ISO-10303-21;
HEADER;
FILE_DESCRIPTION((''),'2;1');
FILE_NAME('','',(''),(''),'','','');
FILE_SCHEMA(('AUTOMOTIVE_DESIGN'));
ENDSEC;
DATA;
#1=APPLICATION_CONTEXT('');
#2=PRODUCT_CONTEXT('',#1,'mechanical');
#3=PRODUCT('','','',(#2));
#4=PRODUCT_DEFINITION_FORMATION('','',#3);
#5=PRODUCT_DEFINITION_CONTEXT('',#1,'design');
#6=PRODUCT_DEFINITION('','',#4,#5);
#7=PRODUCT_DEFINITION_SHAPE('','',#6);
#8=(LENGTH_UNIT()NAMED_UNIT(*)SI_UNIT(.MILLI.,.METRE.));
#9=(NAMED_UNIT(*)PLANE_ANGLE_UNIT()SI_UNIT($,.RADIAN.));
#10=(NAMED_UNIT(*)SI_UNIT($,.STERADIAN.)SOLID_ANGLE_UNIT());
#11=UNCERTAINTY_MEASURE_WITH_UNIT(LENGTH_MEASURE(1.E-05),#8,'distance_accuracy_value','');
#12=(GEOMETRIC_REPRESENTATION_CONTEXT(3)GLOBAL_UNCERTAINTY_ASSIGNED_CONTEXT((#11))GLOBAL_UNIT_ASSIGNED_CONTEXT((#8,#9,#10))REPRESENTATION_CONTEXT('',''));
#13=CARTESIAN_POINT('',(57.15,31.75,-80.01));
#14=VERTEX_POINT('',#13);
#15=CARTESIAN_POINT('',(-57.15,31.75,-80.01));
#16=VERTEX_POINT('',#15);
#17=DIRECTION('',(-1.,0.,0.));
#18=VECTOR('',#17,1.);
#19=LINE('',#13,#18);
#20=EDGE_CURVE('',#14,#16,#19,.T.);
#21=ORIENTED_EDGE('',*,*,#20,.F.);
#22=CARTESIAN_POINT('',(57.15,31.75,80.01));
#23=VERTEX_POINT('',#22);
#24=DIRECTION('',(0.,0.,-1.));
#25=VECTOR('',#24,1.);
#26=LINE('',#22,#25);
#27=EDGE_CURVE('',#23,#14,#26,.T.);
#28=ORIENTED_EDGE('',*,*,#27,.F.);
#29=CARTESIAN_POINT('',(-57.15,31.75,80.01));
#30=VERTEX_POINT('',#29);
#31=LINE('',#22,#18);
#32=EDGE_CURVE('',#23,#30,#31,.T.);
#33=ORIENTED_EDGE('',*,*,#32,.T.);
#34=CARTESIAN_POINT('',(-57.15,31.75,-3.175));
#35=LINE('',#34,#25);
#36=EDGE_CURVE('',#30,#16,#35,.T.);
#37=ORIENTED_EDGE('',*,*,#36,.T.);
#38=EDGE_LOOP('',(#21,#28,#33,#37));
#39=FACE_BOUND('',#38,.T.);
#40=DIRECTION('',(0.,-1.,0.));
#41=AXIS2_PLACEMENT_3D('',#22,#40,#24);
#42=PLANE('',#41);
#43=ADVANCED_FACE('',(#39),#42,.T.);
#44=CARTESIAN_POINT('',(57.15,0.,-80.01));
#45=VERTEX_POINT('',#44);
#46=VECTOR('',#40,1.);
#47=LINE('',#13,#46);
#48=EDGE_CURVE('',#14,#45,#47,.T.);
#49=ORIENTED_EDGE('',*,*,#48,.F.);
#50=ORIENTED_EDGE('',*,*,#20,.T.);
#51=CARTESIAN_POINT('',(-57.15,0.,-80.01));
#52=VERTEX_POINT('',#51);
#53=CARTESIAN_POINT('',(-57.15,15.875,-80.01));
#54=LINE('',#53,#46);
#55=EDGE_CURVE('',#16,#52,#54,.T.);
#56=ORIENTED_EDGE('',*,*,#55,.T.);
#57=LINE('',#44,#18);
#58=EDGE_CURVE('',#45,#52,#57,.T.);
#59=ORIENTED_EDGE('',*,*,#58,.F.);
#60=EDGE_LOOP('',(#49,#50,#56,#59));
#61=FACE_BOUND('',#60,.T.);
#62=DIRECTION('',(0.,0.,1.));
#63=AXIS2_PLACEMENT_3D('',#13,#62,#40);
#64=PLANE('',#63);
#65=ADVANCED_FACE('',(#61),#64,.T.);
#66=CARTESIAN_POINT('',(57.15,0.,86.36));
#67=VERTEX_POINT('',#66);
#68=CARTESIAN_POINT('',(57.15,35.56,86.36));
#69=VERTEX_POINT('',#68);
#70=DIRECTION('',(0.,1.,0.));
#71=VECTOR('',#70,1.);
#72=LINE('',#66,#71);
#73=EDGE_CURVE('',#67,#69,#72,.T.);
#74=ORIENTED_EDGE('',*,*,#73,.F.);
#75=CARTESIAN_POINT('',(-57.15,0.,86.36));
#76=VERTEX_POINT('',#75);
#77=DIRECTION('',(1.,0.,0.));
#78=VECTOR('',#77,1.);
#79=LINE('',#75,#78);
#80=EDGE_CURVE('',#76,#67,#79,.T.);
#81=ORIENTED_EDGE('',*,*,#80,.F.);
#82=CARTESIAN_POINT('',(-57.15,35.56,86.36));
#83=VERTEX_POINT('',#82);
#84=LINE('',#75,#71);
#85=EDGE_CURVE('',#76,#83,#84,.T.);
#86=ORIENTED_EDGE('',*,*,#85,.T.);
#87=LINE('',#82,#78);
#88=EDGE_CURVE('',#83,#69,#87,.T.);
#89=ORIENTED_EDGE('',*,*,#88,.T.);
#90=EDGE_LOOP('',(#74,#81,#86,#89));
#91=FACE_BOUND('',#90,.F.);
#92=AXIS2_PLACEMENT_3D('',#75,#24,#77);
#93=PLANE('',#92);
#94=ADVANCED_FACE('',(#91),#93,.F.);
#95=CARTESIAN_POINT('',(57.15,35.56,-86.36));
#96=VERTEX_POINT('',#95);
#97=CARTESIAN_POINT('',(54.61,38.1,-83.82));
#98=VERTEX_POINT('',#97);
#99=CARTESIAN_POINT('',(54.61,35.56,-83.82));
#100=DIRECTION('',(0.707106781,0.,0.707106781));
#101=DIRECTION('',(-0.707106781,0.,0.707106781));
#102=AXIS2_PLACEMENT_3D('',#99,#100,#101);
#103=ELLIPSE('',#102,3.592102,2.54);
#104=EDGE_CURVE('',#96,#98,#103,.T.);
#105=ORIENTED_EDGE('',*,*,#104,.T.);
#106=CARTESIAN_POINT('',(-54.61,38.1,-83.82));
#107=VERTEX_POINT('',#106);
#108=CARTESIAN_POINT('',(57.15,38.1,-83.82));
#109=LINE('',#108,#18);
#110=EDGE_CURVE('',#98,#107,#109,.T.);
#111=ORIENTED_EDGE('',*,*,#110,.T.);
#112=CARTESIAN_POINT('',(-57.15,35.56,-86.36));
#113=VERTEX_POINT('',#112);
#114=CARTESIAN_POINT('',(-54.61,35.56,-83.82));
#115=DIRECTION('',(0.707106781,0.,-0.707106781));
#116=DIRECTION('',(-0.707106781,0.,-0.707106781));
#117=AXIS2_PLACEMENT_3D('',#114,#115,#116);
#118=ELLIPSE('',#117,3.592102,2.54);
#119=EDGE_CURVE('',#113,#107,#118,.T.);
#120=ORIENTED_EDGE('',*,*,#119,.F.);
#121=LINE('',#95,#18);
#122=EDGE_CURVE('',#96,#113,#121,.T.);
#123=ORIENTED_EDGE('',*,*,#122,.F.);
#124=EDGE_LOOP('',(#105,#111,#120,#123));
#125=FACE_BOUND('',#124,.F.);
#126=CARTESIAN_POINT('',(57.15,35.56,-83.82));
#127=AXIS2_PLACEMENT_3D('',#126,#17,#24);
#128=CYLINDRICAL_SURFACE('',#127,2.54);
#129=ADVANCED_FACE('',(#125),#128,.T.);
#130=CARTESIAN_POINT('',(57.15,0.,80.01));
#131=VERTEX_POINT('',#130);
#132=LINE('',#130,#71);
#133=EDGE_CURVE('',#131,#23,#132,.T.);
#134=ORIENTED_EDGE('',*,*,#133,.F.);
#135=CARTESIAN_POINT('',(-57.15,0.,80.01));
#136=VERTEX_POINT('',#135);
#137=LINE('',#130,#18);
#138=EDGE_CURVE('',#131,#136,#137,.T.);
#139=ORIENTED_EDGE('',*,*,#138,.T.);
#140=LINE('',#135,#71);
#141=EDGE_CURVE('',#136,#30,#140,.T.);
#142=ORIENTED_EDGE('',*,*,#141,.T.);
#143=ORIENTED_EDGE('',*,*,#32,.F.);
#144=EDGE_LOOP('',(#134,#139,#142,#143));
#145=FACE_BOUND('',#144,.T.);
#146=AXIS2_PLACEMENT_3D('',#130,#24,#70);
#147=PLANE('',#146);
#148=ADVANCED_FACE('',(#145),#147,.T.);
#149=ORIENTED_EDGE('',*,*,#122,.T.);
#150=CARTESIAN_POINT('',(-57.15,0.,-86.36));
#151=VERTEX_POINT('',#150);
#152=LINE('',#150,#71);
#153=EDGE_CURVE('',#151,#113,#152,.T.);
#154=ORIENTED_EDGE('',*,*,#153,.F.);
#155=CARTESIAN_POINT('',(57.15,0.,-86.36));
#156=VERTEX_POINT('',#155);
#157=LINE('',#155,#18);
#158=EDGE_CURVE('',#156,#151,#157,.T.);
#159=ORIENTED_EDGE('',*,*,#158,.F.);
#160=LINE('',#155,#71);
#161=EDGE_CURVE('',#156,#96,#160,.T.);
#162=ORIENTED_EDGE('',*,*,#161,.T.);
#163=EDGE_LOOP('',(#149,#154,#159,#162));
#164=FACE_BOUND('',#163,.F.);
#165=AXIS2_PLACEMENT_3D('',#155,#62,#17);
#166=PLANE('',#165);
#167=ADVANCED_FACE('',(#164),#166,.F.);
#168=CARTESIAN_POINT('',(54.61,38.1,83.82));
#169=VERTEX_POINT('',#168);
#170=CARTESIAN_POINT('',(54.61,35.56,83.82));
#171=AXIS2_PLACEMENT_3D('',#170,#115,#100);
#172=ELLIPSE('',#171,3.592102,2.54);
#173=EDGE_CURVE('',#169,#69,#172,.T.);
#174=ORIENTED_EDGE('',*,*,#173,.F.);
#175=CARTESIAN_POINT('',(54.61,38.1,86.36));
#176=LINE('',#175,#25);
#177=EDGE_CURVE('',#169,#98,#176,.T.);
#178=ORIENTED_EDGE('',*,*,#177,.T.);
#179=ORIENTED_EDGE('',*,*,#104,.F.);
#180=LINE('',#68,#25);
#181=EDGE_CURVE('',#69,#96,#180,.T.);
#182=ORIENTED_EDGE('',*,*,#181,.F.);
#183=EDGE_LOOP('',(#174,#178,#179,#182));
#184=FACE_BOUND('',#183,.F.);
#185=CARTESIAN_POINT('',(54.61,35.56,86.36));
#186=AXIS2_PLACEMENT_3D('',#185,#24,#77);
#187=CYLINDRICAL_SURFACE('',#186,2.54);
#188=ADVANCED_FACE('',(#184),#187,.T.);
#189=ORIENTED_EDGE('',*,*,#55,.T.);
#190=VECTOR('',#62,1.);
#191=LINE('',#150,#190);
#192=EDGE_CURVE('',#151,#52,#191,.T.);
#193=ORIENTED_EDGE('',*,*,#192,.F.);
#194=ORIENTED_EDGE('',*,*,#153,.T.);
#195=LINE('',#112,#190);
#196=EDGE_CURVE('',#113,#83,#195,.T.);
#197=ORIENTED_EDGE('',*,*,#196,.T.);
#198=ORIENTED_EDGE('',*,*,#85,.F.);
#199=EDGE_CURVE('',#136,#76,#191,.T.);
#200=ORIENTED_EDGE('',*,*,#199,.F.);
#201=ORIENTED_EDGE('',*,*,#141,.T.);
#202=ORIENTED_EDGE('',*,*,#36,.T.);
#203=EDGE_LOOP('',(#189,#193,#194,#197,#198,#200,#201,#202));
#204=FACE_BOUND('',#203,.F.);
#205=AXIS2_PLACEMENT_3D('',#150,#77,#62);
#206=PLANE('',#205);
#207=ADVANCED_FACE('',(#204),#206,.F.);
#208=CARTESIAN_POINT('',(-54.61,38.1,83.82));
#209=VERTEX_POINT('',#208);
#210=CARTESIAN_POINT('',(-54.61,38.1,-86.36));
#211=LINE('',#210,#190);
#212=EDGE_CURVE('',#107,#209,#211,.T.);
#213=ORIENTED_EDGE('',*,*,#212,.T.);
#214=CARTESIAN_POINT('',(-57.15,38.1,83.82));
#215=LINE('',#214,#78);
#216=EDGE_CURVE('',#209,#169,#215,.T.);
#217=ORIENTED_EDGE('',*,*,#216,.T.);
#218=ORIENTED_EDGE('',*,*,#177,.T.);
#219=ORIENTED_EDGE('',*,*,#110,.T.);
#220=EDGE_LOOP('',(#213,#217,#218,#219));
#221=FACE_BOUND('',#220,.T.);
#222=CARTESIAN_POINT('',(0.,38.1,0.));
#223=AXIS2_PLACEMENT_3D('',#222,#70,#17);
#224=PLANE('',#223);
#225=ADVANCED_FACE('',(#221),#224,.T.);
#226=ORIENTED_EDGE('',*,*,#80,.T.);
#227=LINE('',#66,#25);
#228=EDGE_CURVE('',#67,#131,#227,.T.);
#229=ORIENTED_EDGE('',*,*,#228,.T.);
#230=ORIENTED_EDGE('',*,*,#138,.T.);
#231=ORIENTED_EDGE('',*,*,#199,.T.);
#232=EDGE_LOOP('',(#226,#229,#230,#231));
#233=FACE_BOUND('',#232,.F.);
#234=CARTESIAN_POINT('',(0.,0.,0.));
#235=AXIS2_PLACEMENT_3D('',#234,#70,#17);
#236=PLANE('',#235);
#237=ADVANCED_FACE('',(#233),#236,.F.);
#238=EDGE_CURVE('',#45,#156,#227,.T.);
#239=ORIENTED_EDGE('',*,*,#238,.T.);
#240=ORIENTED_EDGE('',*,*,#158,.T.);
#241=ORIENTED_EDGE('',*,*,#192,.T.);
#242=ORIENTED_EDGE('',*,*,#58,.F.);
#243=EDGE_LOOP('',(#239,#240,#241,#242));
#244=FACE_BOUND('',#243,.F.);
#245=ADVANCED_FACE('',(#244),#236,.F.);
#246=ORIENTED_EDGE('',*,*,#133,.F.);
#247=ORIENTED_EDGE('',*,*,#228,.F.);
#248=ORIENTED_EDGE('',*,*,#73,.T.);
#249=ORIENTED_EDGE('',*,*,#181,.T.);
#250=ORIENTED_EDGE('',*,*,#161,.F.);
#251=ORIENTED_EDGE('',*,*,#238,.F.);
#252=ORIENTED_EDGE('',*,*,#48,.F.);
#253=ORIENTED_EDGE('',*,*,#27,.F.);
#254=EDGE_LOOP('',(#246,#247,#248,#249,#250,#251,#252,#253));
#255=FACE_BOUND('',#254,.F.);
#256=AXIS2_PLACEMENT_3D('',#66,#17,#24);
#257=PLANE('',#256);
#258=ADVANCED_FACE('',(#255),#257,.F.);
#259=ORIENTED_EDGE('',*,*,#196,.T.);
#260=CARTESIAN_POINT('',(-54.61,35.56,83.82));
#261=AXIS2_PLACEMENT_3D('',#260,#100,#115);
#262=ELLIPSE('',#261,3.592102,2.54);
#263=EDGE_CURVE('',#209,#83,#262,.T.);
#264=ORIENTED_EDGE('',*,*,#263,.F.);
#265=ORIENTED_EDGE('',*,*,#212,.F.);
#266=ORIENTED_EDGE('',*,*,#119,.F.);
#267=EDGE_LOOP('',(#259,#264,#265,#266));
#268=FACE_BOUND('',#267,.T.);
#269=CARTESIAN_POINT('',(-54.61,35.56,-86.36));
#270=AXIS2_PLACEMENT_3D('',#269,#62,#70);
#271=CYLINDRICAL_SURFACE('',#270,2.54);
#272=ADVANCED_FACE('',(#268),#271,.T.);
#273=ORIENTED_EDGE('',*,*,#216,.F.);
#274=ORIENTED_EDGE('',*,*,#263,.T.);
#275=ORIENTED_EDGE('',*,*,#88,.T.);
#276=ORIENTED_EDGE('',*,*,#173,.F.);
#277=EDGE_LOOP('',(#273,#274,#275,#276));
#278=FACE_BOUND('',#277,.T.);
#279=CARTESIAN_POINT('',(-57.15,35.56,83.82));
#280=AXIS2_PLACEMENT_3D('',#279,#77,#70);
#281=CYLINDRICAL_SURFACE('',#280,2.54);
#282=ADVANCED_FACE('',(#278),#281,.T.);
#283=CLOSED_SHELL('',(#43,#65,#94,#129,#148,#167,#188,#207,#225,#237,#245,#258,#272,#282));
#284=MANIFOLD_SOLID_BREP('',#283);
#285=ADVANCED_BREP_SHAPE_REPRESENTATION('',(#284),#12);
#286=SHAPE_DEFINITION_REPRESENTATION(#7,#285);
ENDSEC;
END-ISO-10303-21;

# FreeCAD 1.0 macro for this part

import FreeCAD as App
import Part
import Sketcher

V = App.Vector
Q = App.Units.Quantity


def edges_at(feature, points):
    """Names of the edges that pass closest to the given points."""
    edges = feature.Shape.Edges
    near = lambda p: min(range(len(edges)), key=lambda i: edges[i].distToShape(Part.Vertex(*p))[0])
    return sorted({f"Edge{near(p) + 1}" for p in points})

doc = App.newDocument("Part")
body = doc.addObject("PartDesign::Body", "Body")

sketch1 = body.newObject("Sketcher::SketchObject", "Sketch")
sketch1.AttachmentSupport = (doc.getObject("XZ_Plane"), [""])
sketch1.MapMode = "FlatFace"
sketch1.addGeometry([
    Part.LineSegment(V(57, 86, 0), V(57, -86, 0)),
    Part.LineSegment(V(57, -86, 0), V(-57, -86, 0)),
    Part.LineSegment(V(-57, -86, 0), V(-57, 86, 0)),
    Part.LineSegment(V(-57, 86, 0), V(57, 86, 0)),
], False)
sketch1.addConstraint([
    Sketcher.Constraint("Coincident", 0, 2, 1, 1),
    Sketcher.Constraint("Coincident", 1, 2, 2, 1),
    Sketcher.Constraint("Coincident", 2, 2, 3, 1),
    Sketcher.Constraint("Coincident", 3, 2, 0, 1),
    Sketcher.Constraint("Vertical", 0),
    Sketcher.Constraint("Horizontal", 1),
    Sketcher.Constraint("Vertical", 2),
    Sketcher.Constraint("Horizontal", 3),
    Sketcher.Constraint("Symmetric", 0, 2, 2, 2, -1, 1),
    Sketcher.Constraint("DistanceX", 1, 2, 1, 1, Q("4.5 in")),
    Sketcher.Constraint("DistanceY", 0, 2, 0, 1, Q("6.8 in")),
])
pad1 = body.newObject("PartDesign::Pad", "Pad")
pad1.Profile = sketch1
pad1.Length = Q("1.5 in")
pad1.Reversed = True

sketch2 = body.newObject("Sketcher::SketchObject", "Sketch001")
sketch2.AttachmentSupport = (doc.getObject("YZ_Plane"), [""])
sketch2.MapMode = "FlatFace"
sketch2.AttachmentOffset = App.Placement(V(0, 0, 2.25 * 25.4), App.Rotation())
sketch2.addGeometry([
    Part.LineSegment(V(32, -80, 0), V(32, 80, 0)),
    Part.LineSegment(V(32, 80, 0), V(0, 80, 0)),
    Part.LineSegment(V(0, 80, 0), V(0, -80, 0)),
    Part.LineSegment(V(0, -80, 0), V(32, -80, 0)),
], False)
sketch2.addConstraint([
    Sketcher.Constraint("Coincident", 0, 2, 1, 1),
    Sketcher.Constraint("Coincident", 1, 2, 2, 1),
    Sketcher.Constraint("Coincident", 2, 2, 3, 1),
    Sketcher.Constraint("Coincident", 3, 2, 0, 1),
    Sketcher.Constraint("Vertical", 0),
    Sketcher.Constraint("Horizontal", 1),
    Sketcher.Constraint("Vertical", 2),
    Sketcher.Constraint("Horizontal", 3),
    Sketcher.Constraint("Symmetric", 1, 2, 2, 2, -1, 1),
    Sketcher.Constraint("DistanceY", 0, 1, 0, 2, Q("6.3 in")),
    Sketcher.Constraint("DistanceX", 1, 2, 1, 1, Q("1.25 in")),
])
pocket1 = body.newObject("PartDesign::Pocket", "Pocket")
pocket1.Profile = sketch2
pocket1.Length = Q("5 in")
doc.recompute()

fillet = body.newObject("PartDesign::Fillet", "Fillet")
fillet.Base = (pocket1, edges_at(pocket1, [
    (0, 38.1, 86.36),
    (0, 38.1, -86.36),
    (57.15, 38.1, 0),
    (-57.15, 38.1, 0),
]))
fillet.Radius = Q("0.1 in")

doc.recompute()
